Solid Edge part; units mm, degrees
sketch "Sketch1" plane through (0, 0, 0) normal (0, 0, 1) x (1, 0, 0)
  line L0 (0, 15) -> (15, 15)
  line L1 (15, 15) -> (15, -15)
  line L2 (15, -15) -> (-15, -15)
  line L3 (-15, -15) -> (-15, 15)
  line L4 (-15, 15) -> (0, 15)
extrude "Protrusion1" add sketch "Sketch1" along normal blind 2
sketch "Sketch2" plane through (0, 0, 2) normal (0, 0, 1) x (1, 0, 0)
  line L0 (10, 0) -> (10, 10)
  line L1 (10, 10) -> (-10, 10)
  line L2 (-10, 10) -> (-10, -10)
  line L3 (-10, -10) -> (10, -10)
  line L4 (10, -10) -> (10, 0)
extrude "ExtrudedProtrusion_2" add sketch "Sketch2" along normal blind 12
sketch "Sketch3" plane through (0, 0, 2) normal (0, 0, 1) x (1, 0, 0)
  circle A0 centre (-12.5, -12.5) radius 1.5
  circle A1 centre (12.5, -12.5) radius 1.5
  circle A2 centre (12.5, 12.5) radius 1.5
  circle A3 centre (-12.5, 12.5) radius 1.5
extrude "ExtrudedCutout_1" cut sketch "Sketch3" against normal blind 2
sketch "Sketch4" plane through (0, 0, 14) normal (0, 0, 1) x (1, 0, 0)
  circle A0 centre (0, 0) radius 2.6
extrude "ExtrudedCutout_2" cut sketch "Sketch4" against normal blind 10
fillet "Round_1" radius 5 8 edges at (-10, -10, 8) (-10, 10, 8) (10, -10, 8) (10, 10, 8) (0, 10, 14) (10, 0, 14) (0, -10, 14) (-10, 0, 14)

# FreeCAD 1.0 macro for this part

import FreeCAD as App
import Part
import Sketcher
from FreeCAD import Vector


def edges_at(feature, points):
    """Names of the edges that pass closest to the given points."""
    edges = feature.Shape.Edges
    near = lambda p: min(range(len(edges)), key=lambda i: edges[i].distToShape(Part.Vertex(*p))[0])
    return sorted({f"Edge{near(p) + 1}" for p in points})


def add_polygon(sketch, points):
    """Adds a closed chain of lines whose ends are joined by coincident constraints."""
    first, n = sketch.GeometryCount, len(points)
    for a, b in zip(points, points[1:] + points[:1]):
        sketch.addGeometry(Part.LineSegment(App.Vector(*a, 0), App.Vector(*b, 0)), False)
    for i in range(n):
        sketch.addConstraint(Sketcher.Constraint("Coincident", first + i, 2, first + (i + 1) % n, 1))

doc = App.newDocument("Part")
body = doc.addObject("PartDesign::Body", "Body")

sketch1 = body.newObject("Sketcher::SketchObject", "Sketch")
sketch1.AttachmentSupport = (doc.getObject("XY_Plane"), [""])
sketch1.MapMode = "FlatFace"
add_polygon(sketch1, [(15, 15), (-15, 15), (-15, -15), (15, -15)])
sketch1.addConstraint([
    Sketcher.Constraint("Horizontal", 0),
    Sketcher.Constraint("Vertical", 1),
    Sketcher.Constraint("Horizontal", 2),
    Sketcher.Constraint("Vertical", 3),
    Sketcher.Constraint("Symmetric", 0, 2, 2, 2, -1, 1),
    Sketcher.Constraint("Equal", 2, 1),
    Sketcher.Constraint("DistanceX", 0, 2, 0, 1, 30.0),
])
pad1 = body.newObject("PartDesign::Pad", "Pad")
pad1.Profile = sketch1
pad1.Length = 2

sketch2 = body.newObject("Sketcher::SketchObject", "Sketch001")
sketch2.AttachmentSupport = (doc.getObject("XY_Plane"), [""])
sketch2.MapMode = "FlatFace"
sketch2.AttachmentOffset = App.Placement(Vector(0, 0, 2), App.Rotation())
add_polygon(sketch2, [(10, -10), (10, 10), (-10, 10), (-10, -10)])
sketch2.addConstraint([
    Sketcher.Constraint("Vertical", 0),
    Sketcher.Constraint("Horizontal", 1),
    Sketcher.Constraint("Vertical", 2),
    Sketcher.Constraint("Horizontal", 3),
    Sketcher.Constraint("Symmetric", 0, 2, 2, 2, -1, 1),
    Sketcher.Constraint("Equal", 3, 0),
    Sketcher.Constraint("DistanceX", 1, 2, 1, 1, 20.0),
])
pad2 = body.newObject("PartDesign::Pad", "Pad001")
pad2.Profile = sketch2
pad2.Length = 12

sketch3 = body.newObject("Sketcher::SketchObject", "Sketch002")
sketch3.AttachmentSupport = (doc.getObject("XY_Plane"), [""])
sketch3.MapMode = "FlatFace"
sketch3.AttachmentOffset = App.Placement(Vector(0, 0, 2), App.Rotation())
sketch3.addGeometry([
    Part.Circle(Vector(-12.5, -12.5, 0), Vector(0, 0, 1), 1.5),
    Part.Circle(Vector(12.5, -12.5, 0), Vector(0, 0, 1), 1.5),
    Part.Circle(Vector(12.5, 12.5, 0), Vector(0, 0, 1), 1.5),
    Part.Circle(Vector(-12.5, 12.5, 0), Vector(0, 0, 1), 1.5),
], False)
sketch3.addConstraint([
    Sketcher.Constraint("Equal", 0, 1),
    Sketcher.Constraint("Equal", 1, 2),
    Sketcher.Constraint("Equal", 2, 3),
    Sketcher.Constraint("Symmetric", 0, 3, 2, 3, -1, 1),
    Sketcher.Constraint("Symmetric", 1, 3, 3, 3, -1, 1),
    Sketcher.Constraint("Symmetric", 0, 3, 1, 3, -2),
    Sketcher.Constraint("Diameter", 0, 3.0),
    Sketcher.Constraint("DistanceX", 0, 3, 1, 3, 25.0),
    Sketcher.Constraint("DistanceY", 1, 3, 2, 3, 25.0),
])
pocket1 = body.newObject("PartDesign::Pocket", "Pocket")
pocket1.Profile = sketch3
pocket1.Length = 2

sketch4 = body.newObject("Sketcher::SketchObject", "Sketch003")
sketch4.AttachmentSupport = (doc.getObject("XY_Plane"), [""])
sketch4.MapMode = "FlatFace"
sketch4.AttachmentOffset = App.Placement(Vector(0, 0, 14), App.Rotation())
sketch4.addGeometry(Part.Circle(Vector(0, 0, 0), Vector(0, 0, 1), 2.6), False)
sketch4.addConstraint([
    Sketcher.Constraint("Coincident", 0, 3, -1, 1),
    Sketcher.Constraint("Diameter", 0, 5.2),
])
pocket2 = body.newObject("PartDesign::Pocket", "Pocket001")
pocket2.Profile = sketch4
pocket2.Length = 10
doc.recompute()

fillet = body.newObject("PartDesign::Fillet", "Fillet")
fillet.Base = (pocket2, edges_at(pocket2, [
    (-10, -10, 8),
    (-10, 10, 8),
    (10, -10, 8),
    (10, 10, 8),
    (0, 10, 14),
    (10, 0, 14),
    (0, -10, 14),
    (-10, 0, 14),
]))
fillet.Radius = 5

doc.recompute()
